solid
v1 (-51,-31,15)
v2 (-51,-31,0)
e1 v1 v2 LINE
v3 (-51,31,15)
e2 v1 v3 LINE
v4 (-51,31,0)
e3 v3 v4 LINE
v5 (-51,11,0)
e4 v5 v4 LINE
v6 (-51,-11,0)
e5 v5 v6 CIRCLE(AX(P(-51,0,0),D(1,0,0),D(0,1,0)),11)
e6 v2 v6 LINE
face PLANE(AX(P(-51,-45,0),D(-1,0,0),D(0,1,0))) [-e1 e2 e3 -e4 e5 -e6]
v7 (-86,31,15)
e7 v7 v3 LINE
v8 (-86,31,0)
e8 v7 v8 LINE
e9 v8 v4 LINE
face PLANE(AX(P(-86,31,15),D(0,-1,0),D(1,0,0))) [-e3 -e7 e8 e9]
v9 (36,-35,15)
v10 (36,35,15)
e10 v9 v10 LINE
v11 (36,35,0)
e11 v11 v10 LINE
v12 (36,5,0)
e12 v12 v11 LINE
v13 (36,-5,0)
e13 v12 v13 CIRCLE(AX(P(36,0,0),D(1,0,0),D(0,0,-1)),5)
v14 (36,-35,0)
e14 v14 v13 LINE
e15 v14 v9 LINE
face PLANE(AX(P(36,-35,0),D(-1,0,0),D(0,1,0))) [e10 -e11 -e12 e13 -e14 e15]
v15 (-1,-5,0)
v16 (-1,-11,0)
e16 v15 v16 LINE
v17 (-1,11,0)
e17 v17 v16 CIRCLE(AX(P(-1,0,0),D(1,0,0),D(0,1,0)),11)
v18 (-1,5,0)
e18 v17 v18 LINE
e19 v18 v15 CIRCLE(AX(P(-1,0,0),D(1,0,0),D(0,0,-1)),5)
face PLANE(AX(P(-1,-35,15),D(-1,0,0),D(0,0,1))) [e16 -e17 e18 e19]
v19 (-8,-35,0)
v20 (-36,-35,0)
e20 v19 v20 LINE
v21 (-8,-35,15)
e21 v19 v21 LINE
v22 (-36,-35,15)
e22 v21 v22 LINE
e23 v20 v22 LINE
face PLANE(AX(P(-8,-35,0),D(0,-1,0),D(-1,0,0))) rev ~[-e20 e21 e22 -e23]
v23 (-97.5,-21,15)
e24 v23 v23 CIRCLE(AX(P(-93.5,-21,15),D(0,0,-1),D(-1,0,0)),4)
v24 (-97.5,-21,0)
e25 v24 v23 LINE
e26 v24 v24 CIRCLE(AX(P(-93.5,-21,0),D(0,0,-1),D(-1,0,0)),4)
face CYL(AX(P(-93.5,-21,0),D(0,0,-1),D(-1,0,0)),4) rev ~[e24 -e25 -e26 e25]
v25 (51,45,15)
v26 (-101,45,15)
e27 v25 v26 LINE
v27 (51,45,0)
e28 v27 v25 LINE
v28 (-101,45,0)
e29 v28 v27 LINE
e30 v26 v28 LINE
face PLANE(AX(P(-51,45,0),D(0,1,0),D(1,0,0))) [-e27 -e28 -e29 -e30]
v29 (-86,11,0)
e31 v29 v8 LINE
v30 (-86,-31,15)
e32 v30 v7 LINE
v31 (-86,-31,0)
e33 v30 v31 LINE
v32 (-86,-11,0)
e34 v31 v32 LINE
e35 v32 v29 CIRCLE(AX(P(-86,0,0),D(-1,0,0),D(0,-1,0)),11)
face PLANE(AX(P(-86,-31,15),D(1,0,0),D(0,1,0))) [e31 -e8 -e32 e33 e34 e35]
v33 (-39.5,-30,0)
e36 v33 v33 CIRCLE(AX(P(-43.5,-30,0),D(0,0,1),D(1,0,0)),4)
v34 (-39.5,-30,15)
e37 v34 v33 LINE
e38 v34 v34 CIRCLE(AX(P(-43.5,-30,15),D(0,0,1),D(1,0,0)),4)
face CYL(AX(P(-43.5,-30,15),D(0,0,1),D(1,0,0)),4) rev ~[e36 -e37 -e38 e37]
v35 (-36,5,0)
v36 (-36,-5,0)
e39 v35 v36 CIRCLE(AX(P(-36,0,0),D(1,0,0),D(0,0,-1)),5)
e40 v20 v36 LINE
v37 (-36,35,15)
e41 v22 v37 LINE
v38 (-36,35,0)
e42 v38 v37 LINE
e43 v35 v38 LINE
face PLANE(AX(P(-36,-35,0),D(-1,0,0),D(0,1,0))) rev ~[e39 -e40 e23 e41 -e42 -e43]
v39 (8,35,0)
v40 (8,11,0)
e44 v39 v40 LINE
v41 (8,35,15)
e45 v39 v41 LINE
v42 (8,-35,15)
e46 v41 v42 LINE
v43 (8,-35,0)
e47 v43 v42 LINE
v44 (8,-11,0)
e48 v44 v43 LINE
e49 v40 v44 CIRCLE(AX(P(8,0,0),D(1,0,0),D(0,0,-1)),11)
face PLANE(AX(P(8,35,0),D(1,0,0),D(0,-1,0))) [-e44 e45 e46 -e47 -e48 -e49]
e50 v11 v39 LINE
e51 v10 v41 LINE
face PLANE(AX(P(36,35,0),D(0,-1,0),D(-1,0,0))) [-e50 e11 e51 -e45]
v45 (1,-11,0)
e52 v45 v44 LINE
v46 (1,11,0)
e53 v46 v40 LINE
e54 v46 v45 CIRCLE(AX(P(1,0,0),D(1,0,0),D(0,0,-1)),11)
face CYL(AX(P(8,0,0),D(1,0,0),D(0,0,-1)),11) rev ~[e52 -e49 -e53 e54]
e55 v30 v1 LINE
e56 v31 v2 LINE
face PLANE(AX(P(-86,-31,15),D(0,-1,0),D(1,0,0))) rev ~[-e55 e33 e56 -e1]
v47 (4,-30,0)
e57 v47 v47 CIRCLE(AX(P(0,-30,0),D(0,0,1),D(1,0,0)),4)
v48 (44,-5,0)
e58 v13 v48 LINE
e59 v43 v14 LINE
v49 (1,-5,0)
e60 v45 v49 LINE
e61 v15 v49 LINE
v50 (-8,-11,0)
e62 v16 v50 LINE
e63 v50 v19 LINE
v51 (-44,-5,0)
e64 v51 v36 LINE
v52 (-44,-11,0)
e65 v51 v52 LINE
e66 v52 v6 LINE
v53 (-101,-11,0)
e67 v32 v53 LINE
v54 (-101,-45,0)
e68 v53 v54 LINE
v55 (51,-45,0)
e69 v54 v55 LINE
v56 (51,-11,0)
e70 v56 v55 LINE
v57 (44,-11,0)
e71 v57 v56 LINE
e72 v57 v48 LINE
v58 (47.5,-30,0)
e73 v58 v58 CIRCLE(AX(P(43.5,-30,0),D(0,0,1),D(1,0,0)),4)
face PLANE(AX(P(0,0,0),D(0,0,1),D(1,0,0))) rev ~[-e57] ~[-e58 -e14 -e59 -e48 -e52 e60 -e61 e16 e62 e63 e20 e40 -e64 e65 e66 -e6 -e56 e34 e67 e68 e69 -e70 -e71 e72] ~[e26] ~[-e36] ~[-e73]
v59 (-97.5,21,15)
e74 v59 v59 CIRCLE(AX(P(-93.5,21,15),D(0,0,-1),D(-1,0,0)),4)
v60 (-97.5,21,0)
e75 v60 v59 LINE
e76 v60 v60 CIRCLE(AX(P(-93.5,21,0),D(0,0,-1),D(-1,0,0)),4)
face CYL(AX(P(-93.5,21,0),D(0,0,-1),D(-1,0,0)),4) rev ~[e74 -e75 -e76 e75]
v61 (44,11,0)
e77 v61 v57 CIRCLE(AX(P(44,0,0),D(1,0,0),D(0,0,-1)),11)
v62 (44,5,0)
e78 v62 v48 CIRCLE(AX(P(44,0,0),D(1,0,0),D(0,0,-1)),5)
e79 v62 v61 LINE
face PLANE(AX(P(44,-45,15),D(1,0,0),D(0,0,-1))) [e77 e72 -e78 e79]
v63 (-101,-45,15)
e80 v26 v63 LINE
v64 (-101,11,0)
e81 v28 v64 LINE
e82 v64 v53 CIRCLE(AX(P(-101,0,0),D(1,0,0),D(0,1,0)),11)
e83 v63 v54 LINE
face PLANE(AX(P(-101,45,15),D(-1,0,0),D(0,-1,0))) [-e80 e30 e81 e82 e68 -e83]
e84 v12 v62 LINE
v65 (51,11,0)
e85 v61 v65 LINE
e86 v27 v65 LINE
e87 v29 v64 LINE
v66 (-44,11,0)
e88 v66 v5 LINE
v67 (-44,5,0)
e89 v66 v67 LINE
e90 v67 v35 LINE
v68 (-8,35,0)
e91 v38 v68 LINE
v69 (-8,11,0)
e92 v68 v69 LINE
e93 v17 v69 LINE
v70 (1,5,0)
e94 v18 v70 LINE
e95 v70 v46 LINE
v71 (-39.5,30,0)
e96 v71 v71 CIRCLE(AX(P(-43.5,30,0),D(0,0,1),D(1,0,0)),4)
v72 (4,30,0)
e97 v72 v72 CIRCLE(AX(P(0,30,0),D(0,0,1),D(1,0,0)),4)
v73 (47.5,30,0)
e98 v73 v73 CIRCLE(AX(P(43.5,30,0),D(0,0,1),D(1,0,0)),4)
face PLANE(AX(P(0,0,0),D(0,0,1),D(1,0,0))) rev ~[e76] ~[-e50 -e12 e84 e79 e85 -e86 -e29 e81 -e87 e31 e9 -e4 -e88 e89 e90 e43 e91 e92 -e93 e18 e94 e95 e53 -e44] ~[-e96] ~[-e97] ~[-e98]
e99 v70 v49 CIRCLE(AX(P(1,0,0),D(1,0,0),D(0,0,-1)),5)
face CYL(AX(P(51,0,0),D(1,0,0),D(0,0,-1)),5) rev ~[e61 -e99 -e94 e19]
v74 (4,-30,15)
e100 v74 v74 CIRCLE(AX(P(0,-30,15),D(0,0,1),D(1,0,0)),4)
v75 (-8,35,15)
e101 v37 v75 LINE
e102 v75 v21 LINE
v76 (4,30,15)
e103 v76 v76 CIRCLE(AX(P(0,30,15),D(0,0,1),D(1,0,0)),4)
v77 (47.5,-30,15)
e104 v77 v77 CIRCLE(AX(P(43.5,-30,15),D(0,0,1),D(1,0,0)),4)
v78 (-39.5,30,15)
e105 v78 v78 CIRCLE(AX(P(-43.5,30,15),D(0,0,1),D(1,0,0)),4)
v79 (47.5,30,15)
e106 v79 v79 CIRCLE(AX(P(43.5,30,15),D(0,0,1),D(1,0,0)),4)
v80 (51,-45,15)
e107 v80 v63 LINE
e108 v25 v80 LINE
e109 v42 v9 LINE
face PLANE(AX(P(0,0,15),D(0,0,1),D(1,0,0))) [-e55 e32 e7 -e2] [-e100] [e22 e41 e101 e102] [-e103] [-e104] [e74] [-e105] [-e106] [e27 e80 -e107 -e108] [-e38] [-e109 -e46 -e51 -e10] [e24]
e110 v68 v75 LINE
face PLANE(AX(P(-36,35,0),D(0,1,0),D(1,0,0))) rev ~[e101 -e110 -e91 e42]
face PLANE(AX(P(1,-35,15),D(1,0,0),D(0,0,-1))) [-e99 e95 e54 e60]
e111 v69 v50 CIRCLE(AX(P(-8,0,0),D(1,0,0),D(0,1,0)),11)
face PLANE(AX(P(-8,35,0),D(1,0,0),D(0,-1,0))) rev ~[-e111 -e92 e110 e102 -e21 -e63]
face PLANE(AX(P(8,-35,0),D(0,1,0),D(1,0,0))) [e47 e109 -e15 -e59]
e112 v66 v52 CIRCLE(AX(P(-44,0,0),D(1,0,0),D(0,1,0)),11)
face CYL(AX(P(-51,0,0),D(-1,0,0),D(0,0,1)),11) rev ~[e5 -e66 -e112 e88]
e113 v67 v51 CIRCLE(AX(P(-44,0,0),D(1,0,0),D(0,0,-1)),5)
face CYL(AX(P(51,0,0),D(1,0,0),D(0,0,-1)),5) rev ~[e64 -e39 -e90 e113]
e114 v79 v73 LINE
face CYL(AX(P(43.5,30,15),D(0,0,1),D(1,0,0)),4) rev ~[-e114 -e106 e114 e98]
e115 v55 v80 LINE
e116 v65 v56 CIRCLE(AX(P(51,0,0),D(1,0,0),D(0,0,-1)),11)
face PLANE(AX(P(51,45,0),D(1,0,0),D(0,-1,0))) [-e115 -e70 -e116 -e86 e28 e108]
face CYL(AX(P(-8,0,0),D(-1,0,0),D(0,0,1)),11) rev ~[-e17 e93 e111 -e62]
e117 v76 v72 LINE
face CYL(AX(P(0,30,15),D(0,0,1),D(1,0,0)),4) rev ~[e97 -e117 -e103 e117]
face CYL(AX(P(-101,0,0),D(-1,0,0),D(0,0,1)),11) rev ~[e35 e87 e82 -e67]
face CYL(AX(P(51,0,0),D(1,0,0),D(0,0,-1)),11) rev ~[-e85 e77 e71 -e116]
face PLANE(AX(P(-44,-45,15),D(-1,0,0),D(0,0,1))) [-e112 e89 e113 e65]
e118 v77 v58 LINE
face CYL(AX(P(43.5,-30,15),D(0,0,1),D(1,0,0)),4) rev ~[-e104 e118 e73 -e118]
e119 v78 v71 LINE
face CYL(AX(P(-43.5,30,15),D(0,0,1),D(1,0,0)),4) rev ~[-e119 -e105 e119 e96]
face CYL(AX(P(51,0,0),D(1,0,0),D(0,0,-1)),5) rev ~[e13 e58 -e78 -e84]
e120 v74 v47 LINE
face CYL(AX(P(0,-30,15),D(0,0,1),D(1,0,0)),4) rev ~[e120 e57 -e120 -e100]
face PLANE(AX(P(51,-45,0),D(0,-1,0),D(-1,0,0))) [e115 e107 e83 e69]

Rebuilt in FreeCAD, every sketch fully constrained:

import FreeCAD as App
import Part
import Sketcher
Q = App.Units.Quantity


def add_polygon(sketch, points):
    """Adds a closed chain of lines whose ends are joined by coincident constraints."""
    first, n = sketch.GeometryCount, len(points)
    for a, b in zip(points, points[1:] + points[:1]):
        sketch.addGeometry(Part.LineSegment(App.Vector(*a, 0), App.Vector(*b, 0)), False)
    for i in range(n):
        sketch.addConstraint(Sketcher.Constraint("Coincident", first + i, 2, first + (i + 1) % n, 1))

doc = App.newDocument("Part")
params = doc.addObject("Spreadsheet::Sheet", "Params")
for row, (alias, value) in enumerate([
    ("sketch1_width", "28 mm"),
    ("sketch1_height", "70 mm"),
    ("pad1_length", "15 mm"),
    ("sketch2_diameter", "10 mm"),
    ("sketch3_diameter", "22 mm"),
    ("pocket2_length", "7 mm"),
    ("sketch4_diameter", "22 mm"),
    ("pocket3_length", "7 mm"),
    ("sketch5_diameter", "22 mm"),
    ("pocket4_length", "7 mm"),
    ("sketch6_diameter", "22 mm"),
    ("pocket5_length", "7 mm"),
    ("sketch7_diameter", "8 mm"),
    ("sketch8_width", "35 mm"),
    ("sketch8_height", "14 mm"),
    ("sketch8_height2", "90 mm"),
    ("pad2_length", "15 mm"),
    ("sketch9_diameter", "22 mm"),
    ("pocket7_length", "50 mm"),
    ("sketch10_diameter", "8 mm"),
], start=1):
    params.set(f"A{row}", alias)
    params.set(f"B{row}", "=" + value)
    params.setAlias(f"B{row}", alias)

body = doc.addObject("PartDesign::Body", "Body")

# Sketch on XY plane
sketch1 = body.newObject("Sketcher::SketchObject", "Sketch")
sketch1.AttachmentSupport = (doc.getObject("XY_Plane"), [""])
sketch1.MapMode = "FlatFace"
add_polygon(sketch1, [(-51, -45), (51, -45), (51, 45), (-51, 45)])  # lines 0-3
add_polygon(sketch1, [(-36, -35), (-36, 35), (-8, 35), (-8, -35)])  # lines 4-7
add_polygon(sketch1, [(8, 35), (36, 35), (36, -35), (8, -35)])  # lines 8-11
sketch1.addConstraint(Sketcher.Constraint("Horizontal", 0))
sketch1.addConstraint(Sketcher.Constraint("Vertical", 1))
sketch1.addConstraint(Sketcher.Constraint("Horizontal", 2))
sketch1.addConstraint(Sketcher.Constraint("Vertical", 3))
sketch1.addConstraint(Sketcher.Constraint("Vertical", 4))
sketch1.addConstraint(Sketcher.Constraint("Horizontal", 5))
sketch1.addConstraint(Sketcher.Constraint("Vertical", 6))
sketch1.addConstraint(Sketcher.Constraint("Horizontal", 7))
sketch1.addConstraint(Sketcher.Constraint("Horizontal", 8))
sketch1.addConstraint(Sketcher.Constraint("Vertical", 9))
sketch1.addConstraint(Sketcher.Constraint("Horizontal", 10))
sketch1.addConstraint(Sketcher.Constraint("Vertical", 11))
sketch1.addConstraint(Sketcher.Constraint("Symmetric", 0, 2, 2, 2, -1, 1))
sketch1.addConstraint(Sketcher.Constraint("Symmetric", 7, 2, 8, 2, -1, 1))
sketch1.addConstraint(Sketcher.Constraint("Symmetric", 5, 2, 10, 2, -1, 1))
sketch1.addConstraint(Sketcher.Constraint("Horizontal", 5, 2, 8, 2))
sketch1.addConstraint(Sketcher.Constraint("DistanceX", 5, 1, 5, 2, Q("28 mm")))
sketch1.addConstraint(Sketcher.Constraint("DistanceY", 4, 1, 4, 2, Q("70 mm")))
sketch1.addConstraint(Sketcher.Constraint("DistanceX", 2, 2, 4, 2, Q("15 mm")))
sketch1.addConstraint(Sketcher.Constraint("DistanceY", 4, 2, 2, 2, Q("10 mm")))
sketch1.addConstraint(Sketcher.Constraint("DistanceX", 6, 2, 10, 2, Q("16 mm")))
sketch1.setExpression("Constraints[28]", "Params.sketch1_width")
sketch1.setExpression("Constraints[29]", "Params.sketch1_height")
pad1 = body.newObject("PartDesign::Pad", "Pad")
pad1.Profile = sketch1
pad1.setExpression("Length", "Params.pad1_length")

# Sketch on YZ plane
sketch2 = body.newObject("Sketcher::SketchObject", "Sketch001")
sketch2.AttachmentSupport = (doc.getObject("YZ_Plane"), [""])
sketch2.MapMode = "FlatFace"
sketch2.AttachmentOffset = App.Placement(App.Vector(0, 0, 51), App.Rotation())
sketch2.addGeometry(Part.Circle(App.Vector(0, 0, 0), App.Vector(0, 0, 1), 5), False)
sketch2.addConstraint(Sketcher.Constraint("Coincident", 0, 3, -1, 1))
sketch2.addConstraint(Sketcher.Constraint("Diameter", 0, Q("10 mm")))
sketch2.setExpression("Constraints[1]", "Params.sketch2_diameter")
pocket1 = body.newObject("PartDesign::Pocket", "Pocket")
pocket1.Profile = sketch2
pocket1.Type = "ThroughAll"

# Sketch on YZ plane
sketch3 = body.newObject("Sketcher::SketchObject", "Sketch002")
sketch3.AttachmentSupport = (doc.getObject("YZ_Plane"), [""])
sketch3.MapMode = "FlatFace"
sketch3.AttachmentOffset = App.Placement(App.Vector(0, 0, 51), App.Rotation())
sketch3.addGeometry(Part.Circle(App.Vector(0, 0, 0), App.Vector(0, 0, 1), 11), False)
sketch3.addConstraint(Sketcher.Constraint("Coincident", 0, 3, -1, 1))
sketch3.addConstraint(Sketcher.Constraint("Diameter", 0, Q("22 mm")))
sketch3.setExpression("Constraints[1]", "Params.sketch3_diameter")
pocket2 = body.newObject("PartDesign::Pocket", "Pocket001")
pocket2.Profile = sketch3
pocket2.setExpression("Length", "Params.pocket2_length")

# Sketch on YZ plane
sketch4 = body.newObject("Sketcher::SketchObject", "Sketch003")
sketch4.AttachmentSupport = (doc.getObject("YZ_Plane"), [""])
sketch4.MapMode = "FlatFace"
sketch4.AttachmentOffset = App.Placement(App.Vector(0, 0, -51), App.Rotation())
sketch4.addGeometry(Part.Circle(App.Vector(0, 0, 0), App.Vector(0, 0, 1), 11), False)
sketch4.addConstraint(Sketcher.Constraint("Coincident", 0, 3, -1, 1))
sketch4.addConstraint(Sketcher.Constraint("Diameter", 0, Q("22 mm")))
sketch4.setExpression("Constraints[1]", "Params.sketch4_diameter")
pocket3 = body.newObject("PartDesign::Pocket", "Pocket002")
pocket3.Profile = sketch4
pocket3.setExpression("Length", "Params.pocket3_length")
pocket3.Reversed = True

# Sketch on YZ plane
sketch5 = body.newObject("Sketcher::SketchObject", "Sketch004")
sketch5.AttachmentSupport = (doc.getObject("YZ_Plane"), [""])
sketch5.MapMode = "FlatFace"
sketch5.AttachmentOffset = App.Placement(App.Vector(0, 0, -8), App.Rotation())
sketch5.addGeometry(Part.Circle(App.Vector(0, 0, 0), App.Vector(0, 0, 1), 11), False)
sketch5.addConstraint(Sketcher.Constraint("Coincident", 0, 3, -1, 1))
sketch5.addConstraint(Sketcher.Constraint("Diameter", 0, Q("22 mm")))
sketch5.setExpression("Constraints[1]", "Params.sketch5_diameter")
pocket4 = body.newObject("PartDesign::Pocket", "Pocket003")
pocket4.Profile = sketch5
pocket4.setExpression("Length", "Params.pocket4_length")
pocket4.Reversed = True

# Sketch on YZ plane
sketch6 = body.newObject("Sketcher::SketchObject", "Sketch005")
sketch6.AttachmentSupport = (doc.getObject("YZ_Plane"), [""])
sketch6.MapMode = "FlatFace"
sketch6.AttachmentOffset = App.Placement(App.Vector(0, 0, 8), App.Rotation())
sketch6.addGeometry(Part.Circle(App.Vector(0, 0, 0), App.Vector(0, 0, 1), 11), False)
sketch6.addConstraint(Sketcher.Constraint("Coincident", 0, 3, -1, 1))
sketch6.addConstraint(Sketcher.Constraint("Diameter", 0, Q("22 mm")))
sketch6.setExpression("Constraints[1]", "Params.sketch6_diameter")
pocket5 = body.newObject("PartDesign::Pocket", "Pocket004")
pocket5.Profile = sketch6
pocket5.setExpression("Length", "Params.pocket5_length")

# Sketch on XY plane
sketch7 = body.newObject("Sketcher::SketchObject", "Sketch006")
sketch7.AttachmentSupport = (doc.getObject("XY_Plane"), [""])
sketch7.MapMode = "FlatFace"
sketch7.AttachmentOffset = App.Placement(App.Vector(0, 0, 15), App.Rotation())
sketch7.addGeometry(Part.Circle(App.Vector(0, 30, 0), App.Vector(0, 0, 1), 4), False)
sketch7.addGeometry(Part.Circle(App.Vector(0, -30, 0), App.Vector(0, 0, 1), 4), False)
sketch7.addGeometry(Part.Circle(App.Vector(-43.5, 30, 0), App.Vector(0, 0, 1), 4), False)
sketch7.addGeometry(Part.Circle(App.Vector(-43.5, -30, 0), App.Vector(0, 0, 1), 4), False)
sketch7.addGeometry(Part.Circle(App.Vector(43.5, -30, 0), App.Vector(0, 0, 1), 4), False)
sketch7.addGeometry(Part.Circle(App.Vector(43.5, 30, 0), App.Vector(0, 0, 1), 4), False)
sketch7.addConstraint(Sketcher.Constraint("Equal", 0, 1))
sketch7.addConstraint(Sketcher.Constraint("Equal", 1, 2))
sketch7.addConstraint(Sketcher.Constraint("Equal", 2, 3))
sketch7.addConstraint(Sketcher.Constraint("Equal", 3, 4))
sketch7.addConstraint(Sketcher.Constraint("Equal", 4, 5))
sketch7.addConstraint(Sketcher.Constraint("Symmetric", 0, 3, 1, 3, -1, 1))
sketch7.addConstraint(Sketcher.Constraint("Symmetric", 2, 3, 4, 3, -1, 1))
sketch7.addConstraint(Sketcher.Constraint("Symmetric", 3, 3, 5, 3, -1, 1))
sketch7.addConstraint(Sketcher.Constraint("Symmetric", 3, 3, 4, 3, -2))
sketch7.addConstraint(Sketcher.Constraint("PointOnObject", 0, 3, -2))
sketch7.addConstraint(Sketcher.Constraint("Horizontal", 0, 3, 2, 3))
sketch7.addConstraint(Sketcher.Constraint("Diameter", 0, Q("8 mm")))
sketch7.addConstraint(Sketcher.Constraint("DistanceY", 1, 3, 0, 3, Q("60 mm")))
sketch7.addConstraint(Sketcher.Constraint("DistanceX", 3, 3, 4, 3, Q("87 mm")))
sketch7.setExpression("Constraints[11]", "Params.sketch7_diameter")
pocket6 = body.newObject("PartDesign::Pocket", "Pocket005")
pocket6.Profile = sketch7
pocket6.Type = "ThroughAll"

# Sketch on XY plane
sketch8 = body.newObject("Sketcher::SketchObject", "Sketch007")
sketch8.AttachmentSupport = (doc.getObject("XY_Plane"), [""])
sketch8.MapMode = "FlatFace"
sketch8.AttachmentOffset = App.Placement(App.Vector(0, 0, 15), App.Rotation())
add_polygon(sketch8, [(-51, 31), (-51, 45), (-101, 45), (-101, -45), (-51, -45), (-51, -31), (-86, -31), (-86, 31)])  # lines 0-7
sketch8.addConstraint(Sketcher.Constraint("Vertical", 0))
sketch8.addConstraint(Sketcher.Constraint("Horizontal", 1))
sketch8.addConstraint(Sketcher.Constraint("Vertical", 2))
sketch8.addConstraint(Sketcher.Constraint("Horizontal", 3))
sketch8.addConstraint(Sketcher.Constraint("Vertical", 4))
sketch8.addConstraint(Sketcher.Constraint("Horizontal", 5))
sketch8.addConstraint(Sketcher.Constraint("Vertical", 6))
sketch8.addConstraint(Sketcher.Constraint("Horizontal", 7))
sketch8.addConstraint(Sketcher.Constraint("Symmetric", 0, 2, 3, 2, -1))
sketch8.addConstraint(Sketcher.Constraint("Equal", 0, 4))
sketch8.addConstraint(Sketcher.Constraint("DistanceX", 5, 2, 5, 1, Q("35 mm")))
sketch8.addConstraint(Sketcher.Constraint("DistanceY", 0, 1, 0, 2, Q("14 mm")))
sketch8.addConstraint(Sketcher.Constraint("DistanceX", 2, 2, 5, 2, Q("15 mm")))
sketch8.addConstraint(Sketcher.Constraint("DistanceY", 2, 2, 2, 1, Q("90 mm")))
sketch8.addConstraint(Sketcher.Constraint("DistanceX", 0, 2, -1, 1, Q("51 mm")))
sketch8.setExpression("Constraints[18]", "Params.sketch8_width")
sketch8.setExpression("Constraints[19]", "Params.sketch8_height")
sketch8.setExpression("Constraints[21]", "Params.sketch8_height2")
pad2 = body.newObject("PartDesign::Pad", "Pad001")
pad2.Profile = sketch8
pad2.setExpression("Length", "Params.pad2_length")
pad2.Reversed = True

# Sketch on YZ plane
sketch9 = body.newObject("Sketcher::SketchObject", "Sketch008")
sketch9.AttachmentSupport = (doc.getObject("YZ_Plane"), [""])
sketch9.MapMode = "FlatFace"
sketch9.AttachmentOffset = App.Placement(App.Vector(0, 0, -101), App.Rotation())
sketch9.addGeometry(Part.Circle(App.Vector(0, 0, 0), App.Vector(0, 0, 1), 11), False)
sketch9.addConstraint(Sketcher.Constraint("Coincident", 0, 3, -1, 1))
sketch9.addConstraint(Sketcher.Constraint("Diameter", 0, Q("22 mm")))
sketch9.setExpression("Constraints[1]", "Params.sketch9_diameter")
pocket7 = body.newObject("PartDesign::Pocket", "Pocket006")
pocket7.Profile = sketch9
pocket7.setExpression("Length", "Params.pocket7_length")
pocket7.Reversed = True

# Sketch on XY plane
sketch10 = body.newObject("Sketcher::SketchObject", "Sketch009")
sketch10.AttachmentSupport = (doc.getObject("XY_Plane"), [""])
sketch10.MapMode = "FlatFace"
sketch10.addGeometry(Part.Circle(App.Vector(-93.5, 21, 0), App.Vector(0, 0, 1), 4), False)
sketch10.addGeometry(Part.Circle(App.Vector(-93.5, -21, 0), App.Vector(0, 0, 1), 4), False)
sketch10.addConstraint(Sketcher.Constraint("Equal", 0, 1))
sketch10.addConstraint(Sketcher.Constraint("Symmetric", 0, 3, 1, 3, -1))
sketch10.addConstraint(Sketcher.Constraint("Diameter", 0, Q("8 mm")))
sketch10.addConstraint(Sketcher.Constraint("DistanceY", -1, 1, 0, 3, Q("21 mm")))
sketch10.addConstraint(Sketcher.Constraint("DistanceX", 0, 3, -1, 1, Q("93.5 mm")))
sketch10.setExpression("Constraints[2]", "Params.sketch10_diameter")
pocket8 = body.newObject("PartDesign::Pocket", "Pocket007")
pocket8.Profile = sketch10
pocket8.Type = "ThroughAll"
pocket8.Reversed = True

doc.recompute()
